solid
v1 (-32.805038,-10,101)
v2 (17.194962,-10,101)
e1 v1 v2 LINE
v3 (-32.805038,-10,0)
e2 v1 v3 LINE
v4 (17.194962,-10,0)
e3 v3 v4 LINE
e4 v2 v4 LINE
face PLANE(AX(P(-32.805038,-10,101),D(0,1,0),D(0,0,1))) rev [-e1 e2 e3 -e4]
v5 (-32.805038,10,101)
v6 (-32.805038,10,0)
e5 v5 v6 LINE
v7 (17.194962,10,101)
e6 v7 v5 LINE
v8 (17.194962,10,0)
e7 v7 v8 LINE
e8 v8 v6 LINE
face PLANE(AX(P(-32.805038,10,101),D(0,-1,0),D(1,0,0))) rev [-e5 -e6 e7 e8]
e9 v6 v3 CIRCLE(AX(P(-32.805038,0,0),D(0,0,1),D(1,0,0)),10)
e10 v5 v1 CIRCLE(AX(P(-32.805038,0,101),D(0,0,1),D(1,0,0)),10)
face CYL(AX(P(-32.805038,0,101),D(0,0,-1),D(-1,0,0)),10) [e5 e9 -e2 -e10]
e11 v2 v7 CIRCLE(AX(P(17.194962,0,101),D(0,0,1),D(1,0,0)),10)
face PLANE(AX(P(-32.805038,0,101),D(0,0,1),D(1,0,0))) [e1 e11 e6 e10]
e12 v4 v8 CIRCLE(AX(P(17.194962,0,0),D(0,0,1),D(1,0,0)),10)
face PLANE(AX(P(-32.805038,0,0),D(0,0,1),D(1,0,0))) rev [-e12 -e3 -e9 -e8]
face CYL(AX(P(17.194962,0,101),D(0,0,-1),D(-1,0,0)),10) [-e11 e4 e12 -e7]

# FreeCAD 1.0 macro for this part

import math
import FreeCAD as App
import Part
import Sketcher

doc = App.newDocument("Part")
body = doc.addObject("PartDesign::Body", "Body")

sketch1 = body.newObject("Sketcher::SketchObject", "Sketch")
sketch1.AttachmentSupport = (doc.getObject("XY_Plane"), [""])
sketch1.MapMode = "FlatFace"
sketch1.addGeometry(Part.LineSegment(App.Vector(17, 10, 0), App.Vector(-33, 10, 0)), False)
sketch1.addGeometry(Part.ArcOfCircle(Part.Circle(App.Vector(-33, 0, 0), App.Vector(0, 0, 1), 10), math.radians(90), math.radians(270)), False)
sketch1.addGeometry(Part.LineSegment(App.Vector(-33, -10, 0), App.Vector(17, -10, 0)), False)
sketch1.addGeometry(Part.ArcOfCircle(Part.Circle(App.Vector(17, 0, 0), App.Vector(0, 0, 1), 10), math.radians(-90), math.radians(90)), False)
sketch1.addConstraint(Sketcher.Constraint("Tangent", 0, 2, 1, 1))
sketch1.addConstraint(Sketcher.Constraint("Tangent", 1, 2, 2, 1))
sketch1.addConstraint(Sketcher.Constraint("Tangent", 2, 2, 3, 1))
sketch1.addConstraint(Sketcher.Constraint("Tangent", 3, 2, 0, 1))
sketch1.addConstraint(Sketcher.Constraint("Horizontal", 0))
sketch1.addConstraint(Sketcher.Constraint("Horizontal", 2))
sketch1.addConstraint(Sketcher.Constraint("PointOnObject", 1, 3, -1))
sketch1.addConstraint(Sketcher.Constraint("Radius", 1, 10.0))
sketch1.addConstraint(Sketcher.Constraint("DistanceX", 0, 2, 0, 1, 50.0))
sketch1.addConstraint(Sketcher.Constraint("DistanceX", 1, 3, -1, 1, 32.805038))
pad1 = body.newObject("PartDesign::Pad", "Pad")
pad1.Profile = sketch1
pad1.Length = 101

doc.recompute()
